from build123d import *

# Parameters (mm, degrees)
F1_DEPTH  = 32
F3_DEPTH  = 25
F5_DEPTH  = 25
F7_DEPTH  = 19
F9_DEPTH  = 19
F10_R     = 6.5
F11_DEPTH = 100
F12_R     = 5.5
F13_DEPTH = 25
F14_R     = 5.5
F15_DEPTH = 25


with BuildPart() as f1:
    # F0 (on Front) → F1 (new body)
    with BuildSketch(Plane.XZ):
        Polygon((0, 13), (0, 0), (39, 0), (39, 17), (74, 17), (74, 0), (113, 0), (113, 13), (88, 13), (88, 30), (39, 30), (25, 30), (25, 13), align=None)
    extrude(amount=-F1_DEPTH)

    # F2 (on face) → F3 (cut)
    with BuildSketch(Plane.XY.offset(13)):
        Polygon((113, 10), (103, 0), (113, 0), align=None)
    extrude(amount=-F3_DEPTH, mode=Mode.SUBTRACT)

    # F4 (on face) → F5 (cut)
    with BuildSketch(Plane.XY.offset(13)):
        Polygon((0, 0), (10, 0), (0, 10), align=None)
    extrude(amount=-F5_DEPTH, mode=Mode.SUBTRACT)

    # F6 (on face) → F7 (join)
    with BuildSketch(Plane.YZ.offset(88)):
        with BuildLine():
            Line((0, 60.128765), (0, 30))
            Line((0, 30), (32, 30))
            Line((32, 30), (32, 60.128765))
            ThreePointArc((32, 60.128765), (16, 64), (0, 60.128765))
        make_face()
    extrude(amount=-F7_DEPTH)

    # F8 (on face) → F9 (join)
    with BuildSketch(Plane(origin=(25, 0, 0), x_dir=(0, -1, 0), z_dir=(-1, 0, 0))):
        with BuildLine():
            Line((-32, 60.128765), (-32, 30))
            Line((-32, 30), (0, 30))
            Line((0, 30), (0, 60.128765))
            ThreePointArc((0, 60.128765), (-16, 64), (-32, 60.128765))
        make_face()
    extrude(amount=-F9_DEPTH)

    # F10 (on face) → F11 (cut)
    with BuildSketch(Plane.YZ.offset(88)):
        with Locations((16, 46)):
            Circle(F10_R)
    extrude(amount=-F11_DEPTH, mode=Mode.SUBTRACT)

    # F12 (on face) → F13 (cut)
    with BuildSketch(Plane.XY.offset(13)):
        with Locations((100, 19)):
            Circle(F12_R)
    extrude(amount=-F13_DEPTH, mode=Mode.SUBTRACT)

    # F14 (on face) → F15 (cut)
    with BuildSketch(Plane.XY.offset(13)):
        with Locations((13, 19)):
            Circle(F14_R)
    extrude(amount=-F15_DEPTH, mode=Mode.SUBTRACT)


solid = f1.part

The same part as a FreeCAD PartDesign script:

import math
import FreeCAD as App
import Part
import Sketcher


def add_polygon(sketch, points):
    """Adds a closed chain of lines whose ends are joined by coincident constraints."""
    first, n = sketch.GeometryCount, len(points)
    for a, b in zip(points, points[1:] + points[:1]):
        sketch.addGeometry(Part.LineSegment(App.Vector(*a, 0), App.Vector(*b, 0)), False)
    for i in range(n):
        sketch.addConstraint(Sketcher.Constraint("Coincident", first + i, 2, first + (i + 1) % n, 1))

doc = App.newDocument("Part")
body = doc.addObject("PartDesign::Body", "Body")

sketch1 = body.newObject("Sketcher::SketchObject", "Sketch")
sketch1.AttachmentSupport = (doc.getObject("XZ_Plane"), [""])
sketch1.MapMode = "FlatFace"
add_polygon(sketch1, [(0, 13), (0, 0), (39, 0), (39, 17), (74, 17), (74, 0), (113, 0), (113, 13), (88, 13), (88, 30), (25, 30), (25, 13)])
sketch1.addConstraint(Sketcher.Constraint("Vertical", 0))
sketch1.addConstraint(Sketcher.Constraint("Horizontal", 1))
sketch1.addConstraint(Sketcher.Constraint("Vertical", 2))
sketch1.addConstraint(Sketcher.Constraint("Horizontal", 3))
sketch1.addConstraint(Sketcher.Constraint("Vertical", 4))
sketch1.addConstraint(Sketcher.Constraint("Horizontal", 5))
sketch1.addConstraint(Sketcher.Constraint("Vertical", 6))
sketch1.addConstraint(Sketcher.Constraint("Horizontal", 7))
sketch1.addConstraint(Sketcher.Constraint("Vertical", 8))
sketch1.addConstraint(Sketcher.Constraint("Horizontal", 9))
sketch1.addConstraint(Sketcher.Constraint("Vertical", 10))
sketch1.addConstraint(Sketcher.Constraint("Horizontal", 11))
sketch1.addConstraint(Sketcher.Constraint("Coincident", 0, 2, -1, 1))
sketch1.addConstraint(Sketcher.Constraint("PointOnObject", 4, 2, -1))
sketch1.addConstraint(Sketcher.Constraint("Horizontal", 7, 2, 10, 2))
sketch1.addConstraint(Sketcher.Constraint("Equal", 1, 5))
sketch1.addConstraint(Sketcher.Constraint("Equal", 7, 11))
sketch1.addConstraint(Sketcher.Constraint("Equal", 4, 8))
sketch1.addConstraint(Sketcher.Constraint("DistanceX", 1, 1, 1, 2, 39.0))
sketch1.addConstraint(Sketcher.Constraint("DistanceX", 3, 1, 3, 2, 35.0))
sketch1.addConstraint(Sketcher.Constraint("DistanceX", 7, 2, 7, 1, 25.0))
sketch1.addConstraint(Sketcher.Constraint("DistanceY", 0, 2, 0, 1, 13.0))
sketch1.addConstraint(Sketcher.Constraint("DistanceY", 2, 1, 2, 2, 17.0))
pad1 = body.newObject("PartDesign::Pad", "Pad")
pad1.Profile = sketch1
pad1.Length = 32
pad1.Reversed = True

sketch2 = body.newObject("Sketcher::SketchObject", "Sketch001")
sketch2.AttachmentSupport = (doc.getObject("XY_Plane"), [""])
sketch2.MapMode = "FlatFace"
sketch2.AttachmentOffset = App.Placement(App.Vector(0, 0, 13), App.Rotation())
add_polygon(sketch2, [(113, 10), (103, 0), (113, 0)])
sketch2.addConstraint(Sketcher.Constraint("Horizontal", 1))
sketch2.addConstraint(Sketcher.Constraint("Vertical", 2))
sketch2.addConstraint(Sketcher.Constraint("PointOnObject", 0, 2, -1))
sketch2.addConstraint(Sketcher.Constraint("Equal", 1, 2))
sketch2.addConstraint(Sketcher.Constraint("DistanceX", 1, 1, 1, 2, 10.0))
sketch2.addConstraint(Sketcher.Constraint("DistanceX", -1, 1, 0, 2, 103.0))
pocket1 = body.newObject("PartDesign::Pocket", "Pocket")
pocket1.Profile = sketch2
pocket1.Length = 25

sketch3 = body.newObject("Sketcher::SketchObject", "Sketch002")
sketch3.AttachmentSupport = (doc.getObject("XY_Plane"), [""])
sketch3.MapMode = "FlatFace"
sketch3.AttachmentOffset = App.Placement(App.Vector(0, 0, 13), App.Rotation())
add_polygon(sketch3, [(0, 0), (10, 0), (0, 10)])
sketch3.addConstraint(Sketcher.Constraint("Horizontal", 0))
sketch3.addConstraint(Sketcher.Constraint("Vertical", 2))
sketch3.addConstraint(Sketcher.Constraint("Coincident", 2, 2, -1, 1))
sketch3.addConstraint(Sketcher.Constraint("Equal", 0, 2))
sketch3.addConstraint(Sketcher.Constraint("DistanceX", 0, 1, 0, 2, 10.0))
pocket2 = body.newObject("PartDesign::Pocket", "Pocket001")
pocket2.Profile = sketch3
pocket2.Length = 25

sketch4 = body.newObject("Sketcher::SketchObject", "Sketch003")
sketch4.AttachmentSupport = (doc.getObject("YZ_Plane"), [""])
sketch4.MapMode = "FlatFace"
sketch4.AttachmentOffset = App.Placement(App.Vector(0, 0, 88), App.Rotation())
sketch4.addGeometry(Part.LineSegment(App.Vector(0, 60, 0), App.Vector(0, 30, 0)), False)
sketch4.addGeometry(Part.LineSegment(App.Vector(0, 30, 0), App.Vector(32, 30, 0)), False)
sketch4.addGeometry(Part.LineSegment(App.Vector(32, 30, 0), App.Vector(32, 60, 0)), False)
sketch4.addGeometry(Part.ArcOfCircle(Part.Circle(App.Vector(16, 29, 0), App.Vector(0, 0, 1), 35), math.radians(63), math.radians(117)), False)
sketch4.addConstraint(Sketcher.Constraint("Coincident", 0, 2, 1, 1))
sketch4.addConstraint(Sketcher.Constraint("Coincident", 1, 2, 2, 1))
sketch4.addConstraint(Sketcher.Constraint("Coincident", 2, 2, 3, 1))
sketch4.addConstraint(Sketcher.Constraint("Coincident", 3, 2, 0, 1))
sketch4.addConstraint(Sketcher.Constraint("Vertical", 0))
sketch4.addConstraint(Sketcher.Constraint("Horizontal", 1))
sketch4.addConstraint(Sketcher.Constraint("Vertical", 2))
sketch4.addConstraint(Sketcher.Constraint("PointOnObject", 0, 2, -2))
sketch4.addConstraint(Sketcher.Constraint("Horizontal", 2, 2, 3, 2))
sketch4.addConstraint(Sketcher.Constraint("Radius", 3, 35.000001))
sketch4.addConstraint(Sketcher.Constraint("DistanceX", 1, 1, 1, 2, 32.0))
sketch4.addConstraint(Sketcher.Constraint("DistanceY", -1, 1, 3, 3, 28.999999))
sketch4.addConstraint(Sketcher.Constraint("DistanceY", -1, 1, 0, 2, 30.0))
pad2 = body.newObject("PartDesign::Pad", "Pad001")
pad2.Profile = sketch4
pad2.Length = 19
pad2.Reversed = True

sketch5 = body.newObject("Sketcher::SketchObject", "Sketch004")
sketch5.AttachmentSupport = (doc.getObject("YZ_Plane"), [""])
sketch5.MapMode = "FlatFace"
sketch5.AttachmentOffset = App.Placement(App.Vector(0, 0, 25), App.Rotation())
sketch5.addGeometry(Part.LineSegment(App.Vector(32, 60, 0), App.Vector(32, 30, 0)), False)
sketch5.addGeometry(Part.LineSegment(App.Vector(32, 30, 0), App.Vector(0, 30, 0)), False)
sketch5.addGeometry(Part.LineSegment(App.Vector(0, 30, 0), App.Vector(0, 60, 0)), False)
sketch5.addGeometry(Part.ArcOfCircle(Part.Circle(App.Vector(16, 29, 0), App.Vector(0, 0, 1), 35), math.radians(63), math.radians(117)), False)
sketch5.addConstraint(Sketcher.Constraint("Coincident", 0, 2, 1, 1))
sketch5.addConstraint(Sketcher.Constraint("Coincident", 1, 2, 2, 1))
sketch5.addConstraint(Sketcher.Constraint("Coincident", 2, 2, 3, 2))
sketch5.addConstraint(Sketcher.Constraint("Coincident", 3, 1, 0, 1))
sketch5.addConstraint(Sketcher.Constraint("Vertical", 0))
sketch5.addConstraint(Sketcher.Constraint("Horizontal", 1))
sketch5.addConstraint(Sketcher.Constraint("Vertical", 2))
sketch5.addConstraint(Sketcher.Constraint("PointOnObject", 1, 2, -2))
sketch5.addConstraint(Sketcher.Constraint("Horizontal", 2, 2, 3, 1))
sketch5.addConstraint(Sketcher.Constraint("Radius", 3, 35.000001))
sketch5.addConstraint(Sketcher.Constraint("DistanceX", 1, 2, 1, 1, 32.0))
sketch5.addConstraint(Sketcher.Constraint("DistanceY", -1, 1, 3, 3, 28.999999))
sketch5.addConstraint(Sketcher.Constraint("DistanceY", -1, 1, 0, 2, 30.0))
pad3 = body.newObject("PartDesign::Pad", "Pad002")
pad3.Profile = sketch5
pad3.Length = 19

sketch6 = body.newObject("Sketcher::SketchObject", "Sketch005")
sketch6.AttachmentSupport = (doc.getObject("YZ_Plane"), [""])
sketch6.MapMode = "FlatFace"
sketch6.AttachmentOffset = App.Placement(App.Vector(0, 0, 88), App.Rotation())
sketch6.addGeometry(Part.Circle(App.Vector(16, 46, 0), App.Vector(0, 0, 1), 6), False)
sketch6.addConstraint(Sketcher.Constraint("Diameter", 0, 13.0))
sketch6.addConstraint(Sketcher.Constraint("DistanceX", -1, 1, 0, 3, 16.0))
sketch6.addConstraint(Sketcher.Constraint("DistanceY", -1, 1, 0, 3, 46.0))
pocket3 = body.newObject("PartDesign::Pocket", "Pocket002")
pocket3.Profile = sketch6
pocket3.Length = 100

sketch7 = body.newObject("Sketcher::SketchObject", "Sketch006")
sketch7.AttachmentSupport = (doc.getObject("XY_Plane"), [""])
sketch7.MapMode = "FlatFace"
sketch7.AttachmentOffset = App.Placement(App.Vector(0, 0, 13), App.Rotation())
sketch7.addGeometry(Part.Circle(App.Vector(100, 19, 0), App.Vector(0, 0, 1), 6), False)
sketch7.addConstraint(Sketcher.Constraint("Diameter", 0, 11.0))
sketch7.addConstraint(Sketcher.Constraint("DistanceX", -1, 1, 0, 3, 100.0))
sketch7.addConstraint(Sketcher.Constraint("DistanceY", -1, 1, 0, 3, 19.0))
pocket4 = body.newObject("PartDesign::Pocket", "Pocket003")
pocket4.Profile = sketch7
pocket4.Length = 25

sketch8 = body.newObject("Sketcher::SketchObject", "Sketch007")
sketch8.AttachmentSupport = (doc.getObject("XY_Plane"), [""])
sketch8.MapMode = "FlatFace"
sketch8.AttachmentOffset = App.Placement(App.Vector(0, 0, 13), App.Rotation())
sketch8.addGeometry(Part.Circle(App.Vector(13, 19, 0), App.Vector(0, 0, 1), 6), False)
sketch8.addConstraint(Sketcher.Constraint("Diameter", 0, 11.0))
sketch8.addConstraint(Sketcher.Constraint("DistanceX", -1, 1, 0, 3, 13.0))
sketch8.addConstraint(Sketcher.Constraint("DistanceY", -1, 1, 0, 3, 19.0))
pocket5 = body.newObject("PartDesign::Pocket", "Pocket004")
pocket5.Profile = sketch8
pocket5.Length = 25

doc.recompute()
